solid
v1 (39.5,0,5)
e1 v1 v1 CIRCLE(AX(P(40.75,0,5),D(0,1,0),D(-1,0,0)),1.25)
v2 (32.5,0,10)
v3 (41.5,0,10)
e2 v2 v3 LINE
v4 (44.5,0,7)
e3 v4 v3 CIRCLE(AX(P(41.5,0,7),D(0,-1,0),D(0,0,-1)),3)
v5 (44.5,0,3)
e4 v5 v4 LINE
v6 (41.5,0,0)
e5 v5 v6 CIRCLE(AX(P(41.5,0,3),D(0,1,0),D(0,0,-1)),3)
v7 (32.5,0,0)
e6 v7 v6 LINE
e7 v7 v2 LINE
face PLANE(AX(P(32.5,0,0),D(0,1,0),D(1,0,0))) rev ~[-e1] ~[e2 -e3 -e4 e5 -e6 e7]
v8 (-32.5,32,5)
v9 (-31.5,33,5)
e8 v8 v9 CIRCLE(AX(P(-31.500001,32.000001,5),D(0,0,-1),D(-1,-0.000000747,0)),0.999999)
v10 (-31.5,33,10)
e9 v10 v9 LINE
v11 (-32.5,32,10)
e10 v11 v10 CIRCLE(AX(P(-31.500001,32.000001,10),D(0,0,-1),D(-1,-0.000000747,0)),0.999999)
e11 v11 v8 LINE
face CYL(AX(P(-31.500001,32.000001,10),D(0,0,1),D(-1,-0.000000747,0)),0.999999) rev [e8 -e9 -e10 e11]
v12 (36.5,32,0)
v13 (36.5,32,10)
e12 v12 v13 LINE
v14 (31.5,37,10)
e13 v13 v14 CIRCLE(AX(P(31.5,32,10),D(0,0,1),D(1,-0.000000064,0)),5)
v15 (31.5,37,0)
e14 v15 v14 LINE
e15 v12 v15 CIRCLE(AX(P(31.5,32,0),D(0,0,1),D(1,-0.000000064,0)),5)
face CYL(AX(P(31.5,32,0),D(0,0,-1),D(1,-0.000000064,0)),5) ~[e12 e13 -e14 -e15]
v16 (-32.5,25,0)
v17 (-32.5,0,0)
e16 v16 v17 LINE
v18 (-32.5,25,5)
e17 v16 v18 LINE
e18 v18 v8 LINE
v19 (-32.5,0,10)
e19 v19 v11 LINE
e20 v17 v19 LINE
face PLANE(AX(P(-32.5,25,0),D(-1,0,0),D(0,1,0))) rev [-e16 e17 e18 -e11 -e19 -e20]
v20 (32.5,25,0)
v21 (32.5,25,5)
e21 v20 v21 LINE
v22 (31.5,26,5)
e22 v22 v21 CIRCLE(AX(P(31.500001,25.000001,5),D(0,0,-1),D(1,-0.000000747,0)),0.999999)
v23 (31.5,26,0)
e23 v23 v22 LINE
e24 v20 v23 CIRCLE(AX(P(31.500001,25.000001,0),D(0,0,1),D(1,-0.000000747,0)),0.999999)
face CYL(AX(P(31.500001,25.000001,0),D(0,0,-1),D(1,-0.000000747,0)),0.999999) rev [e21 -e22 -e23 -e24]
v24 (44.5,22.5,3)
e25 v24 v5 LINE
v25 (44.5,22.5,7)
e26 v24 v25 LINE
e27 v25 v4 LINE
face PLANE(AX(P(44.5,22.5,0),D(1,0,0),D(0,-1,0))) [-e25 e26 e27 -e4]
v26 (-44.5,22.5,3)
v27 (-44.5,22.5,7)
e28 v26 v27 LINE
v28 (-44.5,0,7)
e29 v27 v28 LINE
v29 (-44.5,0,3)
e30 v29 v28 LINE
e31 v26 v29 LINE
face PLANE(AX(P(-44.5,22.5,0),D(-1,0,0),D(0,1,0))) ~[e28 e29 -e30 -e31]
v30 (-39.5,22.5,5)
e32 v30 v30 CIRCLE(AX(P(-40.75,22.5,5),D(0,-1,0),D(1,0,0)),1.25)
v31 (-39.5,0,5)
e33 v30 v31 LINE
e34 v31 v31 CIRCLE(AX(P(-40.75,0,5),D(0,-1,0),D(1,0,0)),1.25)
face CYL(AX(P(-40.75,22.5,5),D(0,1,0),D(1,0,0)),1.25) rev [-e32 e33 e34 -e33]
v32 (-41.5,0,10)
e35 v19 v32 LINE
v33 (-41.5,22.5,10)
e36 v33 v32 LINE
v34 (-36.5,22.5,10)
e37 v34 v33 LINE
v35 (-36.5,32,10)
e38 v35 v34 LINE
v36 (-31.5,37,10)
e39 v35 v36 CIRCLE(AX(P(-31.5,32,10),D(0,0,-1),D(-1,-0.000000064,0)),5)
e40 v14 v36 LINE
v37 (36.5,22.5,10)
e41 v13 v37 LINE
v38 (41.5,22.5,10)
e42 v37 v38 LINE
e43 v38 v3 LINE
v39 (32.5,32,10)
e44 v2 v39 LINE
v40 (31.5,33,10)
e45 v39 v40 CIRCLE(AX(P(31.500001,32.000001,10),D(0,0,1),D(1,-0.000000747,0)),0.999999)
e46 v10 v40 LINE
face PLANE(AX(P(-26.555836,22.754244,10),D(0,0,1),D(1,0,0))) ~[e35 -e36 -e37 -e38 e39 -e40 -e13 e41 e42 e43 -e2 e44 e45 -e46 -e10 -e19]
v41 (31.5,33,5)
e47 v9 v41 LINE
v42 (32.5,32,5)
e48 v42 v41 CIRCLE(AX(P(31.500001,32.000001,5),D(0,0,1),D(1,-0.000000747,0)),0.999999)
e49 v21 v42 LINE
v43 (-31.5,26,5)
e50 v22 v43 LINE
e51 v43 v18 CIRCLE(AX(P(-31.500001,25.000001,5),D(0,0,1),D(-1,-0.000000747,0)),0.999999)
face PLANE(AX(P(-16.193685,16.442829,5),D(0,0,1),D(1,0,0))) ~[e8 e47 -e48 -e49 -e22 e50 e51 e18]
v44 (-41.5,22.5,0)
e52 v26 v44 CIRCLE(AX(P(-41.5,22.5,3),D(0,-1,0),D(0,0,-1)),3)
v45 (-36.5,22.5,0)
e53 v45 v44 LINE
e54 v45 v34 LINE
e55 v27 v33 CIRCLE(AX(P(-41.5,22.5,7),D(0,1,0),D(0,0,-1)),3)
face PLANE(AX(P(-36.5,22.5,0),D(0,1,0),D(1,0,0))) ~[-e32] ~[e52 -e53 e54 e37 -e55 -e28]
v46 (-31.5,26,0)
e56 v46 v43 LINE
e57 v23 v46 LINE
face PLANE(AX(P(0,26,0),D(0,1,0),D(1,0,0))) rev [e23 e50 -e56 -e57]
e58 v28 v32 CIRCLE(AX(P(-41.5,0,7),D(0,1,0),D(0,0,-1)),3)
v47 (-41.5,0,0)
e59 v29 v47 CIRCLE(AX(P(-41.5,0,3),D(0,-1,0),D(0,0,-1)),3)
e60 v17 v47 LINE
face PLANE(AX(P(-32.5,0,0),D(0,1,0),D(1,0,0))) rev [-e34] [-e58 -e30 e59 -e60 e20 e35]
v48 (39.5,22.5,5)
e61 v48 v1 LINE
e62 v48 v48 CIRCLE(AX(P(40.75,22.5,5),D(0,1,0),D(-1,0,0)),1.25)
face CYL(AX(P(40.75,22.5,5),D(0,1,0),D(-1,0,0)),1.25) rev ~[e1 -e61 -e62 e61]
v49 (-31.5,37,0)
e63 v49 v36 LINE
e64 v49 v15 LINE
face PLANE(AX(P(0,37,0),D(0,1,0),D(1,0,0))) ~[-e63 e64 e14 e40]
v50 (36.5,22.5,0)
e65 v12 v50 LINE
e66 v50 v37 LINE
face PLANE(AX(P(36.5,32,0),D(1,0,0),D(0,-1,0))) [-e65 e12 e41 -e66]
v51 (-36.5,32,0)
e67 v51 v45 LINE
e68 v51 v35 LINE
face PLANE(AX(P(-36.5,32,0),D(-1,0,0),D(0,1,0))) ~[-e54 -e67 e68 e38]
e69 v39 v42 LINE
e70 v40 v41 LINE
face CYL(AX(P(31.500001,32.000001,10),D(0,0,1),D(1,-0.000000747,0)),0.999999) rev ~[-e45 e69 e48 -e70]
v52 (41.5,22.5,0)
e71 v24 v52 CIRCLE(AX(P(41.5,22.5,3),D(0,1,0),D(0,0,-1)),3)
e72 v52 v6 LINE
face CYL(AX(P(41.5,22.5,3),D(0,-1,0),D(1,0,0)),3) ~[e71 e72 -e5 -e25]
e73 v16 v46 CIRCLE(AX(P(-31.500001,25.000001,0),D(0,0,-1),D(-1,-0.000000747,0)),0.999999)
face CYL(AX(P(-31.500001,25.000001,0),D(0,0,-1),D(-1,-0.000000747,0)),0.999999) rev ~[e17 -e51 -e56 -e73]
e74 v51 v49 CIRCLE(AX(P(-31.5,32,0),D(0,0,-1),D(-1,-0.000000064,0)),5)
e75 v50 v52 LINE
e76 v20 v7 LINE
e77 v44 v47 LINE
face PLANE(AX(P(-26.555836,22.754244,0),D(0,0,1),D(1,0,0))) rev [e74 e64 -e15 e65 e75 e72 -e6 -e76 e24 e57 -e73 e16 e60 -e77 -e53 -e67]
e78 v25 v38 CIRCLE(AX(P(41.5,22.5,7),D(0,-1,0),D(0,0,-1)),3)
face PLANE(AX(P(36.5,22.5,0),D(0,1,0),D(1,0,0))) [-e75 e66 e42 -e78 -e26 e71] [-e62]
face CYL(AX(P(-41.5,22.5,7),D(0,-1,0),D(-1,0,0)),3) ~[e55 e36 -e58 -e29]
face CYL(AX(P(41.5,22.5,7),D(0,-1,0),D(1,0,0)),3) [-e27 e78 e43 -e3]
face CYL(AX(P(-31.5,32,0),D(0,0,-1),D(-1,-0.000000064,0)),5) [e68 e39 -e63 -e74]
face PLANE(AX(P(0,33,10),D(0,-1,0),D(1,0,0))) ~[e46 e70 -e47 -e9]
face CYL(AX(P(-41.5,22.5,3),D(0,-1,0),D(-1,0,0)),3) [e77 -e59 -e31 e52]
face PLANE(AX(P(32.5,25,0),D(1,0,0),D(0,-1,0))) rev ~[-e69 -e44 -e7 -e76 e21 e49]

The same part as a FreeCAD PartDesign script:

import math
import FreeCAD as App
import Part
import Sketcher

V = App.Vector


def edges_at(feature, points):
    """Names of the edges that pass closest to the given points."""
    edges = feature.Shape.Edges
    near = lambda p: min(range(len(edges)), key=lambda i: edges[i].distToShape(Part.Vertex(*p))[0])
    return sorted({f"Edge{near(p) + 1}" for p in points})

doc = App.newDocument("Part")
body = doc.addObject("PartDesign::Body", "Body")

# Sketch on XY plane
sketch1 = doc.addObject("Sketcher::SketchObject", "Sketch")
body.addObject(sketch1)
sketch1.AttachmentSupport = (doc.XY_Plane, [""])
sketch1.MapMode = "FlatFace"
sketch1.addGeometry([
    Part.LineSegment(V(0, 26, 0), V(31.5, 26, 0)),  # 0
    Part.ArcOfCircle(Part.Circle(V(31.500001, 25.000001, 0), V(0, 0, 1), 0.999999), math.radians(-0.000043), math.radians(90.000043)),  # 1
    Part.LineSegment(V(32.5, 25, 0), V(32.5, 0, 0)),  # 2
    Part.LineSegment(V(32.5, 0, 0), V(44.5, 0, 0)),  # 3
    Part.LineSegment(V(44.5, 0, 0), V(44.5, 22.5, 0)),  # 4
    Part.LineSegment(V(44.5, 22.5, 0), V(36.5, 22.5, 0)),  # 5
    Part.LineSegment(V(36.5, 22.5, 0), V(36.5, 32, 0)),  # 6
    Part.ArcOfCircle(Part.Circle(V(31.5, 32, 0), V(0, 0, 1), 5), math.radians(-0.000004), math.radians(90.000004)),  # 7
    Part.LineSegment(V(31.5, 37, 0), V(0, 37, 0)),  # 8
    Part.LineSegment(V(0, 37, 0), V(0, 26, 0)),  # 9
], False)
sketch1.addConstraint([
    Sketcher.Constraint("Tangent", 0, 2, 1, 2),
    Sketcher.Constraint("Tangent", 1, 1, 2, 1),
    Sketcher.Constraint("Coincident", 2, 2, 3, 1),
    Sketcher.Constraint("Coincident", 3, 2, 4, 1),
    Sketcher.Constraint("Coincident", 4, 2, 5, 1),
    Sketcher.Constraint("Coincident", 5, 2, 6, 1),
    Sketcher.Constraint("Tangent", 6, 2, 7, 1),
    Sketcher.Constraint("Tangent", 7, 2, 8, 1),
    Sketcher.Constraint("Coincident", 8, 2, 9, 1),
    Sketcher.Constraint("Coincident", 9, 2, 0, 1),
    Sketcher.Constraint("Horizontal", 0),
    Sketcher.Constraint("Vertical", 2),
    Sketcher.Constraint("Horizontal", 3),
    Sketcher.Constraint("Vertical", 4),
    Sketcher.Constraint("Horizontal", 5),
    Sketcher.Constraint("Vertical", 6),
    Sketcher.Constraint("Horizontal", 8),
    Sketcher.Constraint("Vertical", 9),
    Sketcher.Constraint("PointOnObject", 2, 2, -1),
    Sketcher.Constraint("PointOnObject", 8, 2, -2),
    Sketcher.Constraint("Vertical", 1, 3, 7, 3),
    Sketcher.Constraint("Radius", 1, 0.999999),
    Sketcher.Constraint("Radius", 7, 5.0),
    Sketcher.Constraint("DistanceX", 3, 1, 3, 2, 12.0),
    Sketcher.Constraint("DistanceY", 2, 2, 2, 1, 25.0),
    Sketcher.Constraint("DistanceY", 9, 2, 9, 1, 11.0),
    Sketcher.Constraint("DistanceX", 0, 1, 0, 2, 31.5),
    Sketcher.Constraint("DistanceY", 4, 1, 4, 2, 22.5),
])
pad1 = doc.addObject("PartDesign::Pad", "Pad")
body.addObject(pad1)
pad1.Profile = sketch1
pad1.Length = 10

# Sketch on XZ plane
sketch2 = doc.addObject("Sketcher::SketchObject", "Sketch001")
body.addObject(sketch2)
sketch2.AttachmentSupport = (doc.XZ_Plane, [""])
sketch2.MapMode = "FlatFace"
sketch2.AttachmentOffset = App.Placement(V(0, 0, -22.5), App.Rotation())
sketch2.addGeometry(Part.Circle(V(40.75, 5, 0), V(0, 0, 1), 1.25), False)
sketch2.addConstraint([
    Sketcher.Constraint("Diameter", 0, 2.5),
    Sketcher.Constraint("DistanceY", -1, 1, 0, 3, 5.0),
    Sketcher.Constraint("DistanceX", -1, 1, 0, 3, 40.75),
])
pocket1 = doc.addObject("PartDesign::Pocket", "Pocket")
body.addObject(pocket1)
pocket1.Profile = sketch2
pocket1.Type = "ThroughAll"
pocket1.Reversed = True

# Sketch on XY plane
sketch3 = doc.addObject("Sketcher::SketchObject", "Sketch002")
body.addObject(sketch3)
sketch3.AttachmentSupport = (doc.XY_Plane, [""])
sketch3.MapMode = "FlatFace"
sketch3.AttachmentOffset = App.Placement(V(0, 0, 10), App.Rotation())
sketch3.addGeometry([
    Part.LineSegment(V(0, 0, 0), V(32.5, 0, 0)),  # 0
    Part.LineSegment(V(32.5, 0, 0), V(32.5, 32, 0)),  # 1
    Part.ArcOfCircle(Part.Circle(V(31.500001, 32.000001, 0), V(0, 0, 1), 0.999999), math.radians(-0.000043), math.radians(90.000043)),  # 2
    Part.LineSegment(V(31.5, 33, 0), V(0, 33, 0)),  # 3
    Part.LineSegment(V(0, 33, 0), V(0, 0, 0)),  # 4
], False)
sketch3.addConstraint([
    Sketcher.Constraint("Coincident", 0, 2, 1, 1),
    Sketcher.Constraint("Tangent", 1, 2, 2, 1),
    Sketcher.Constraint("Tangent", 2, 2, 3, 1),
    Sketcher.Constraint("Coincident", 3, 2, 4, 1),
    Sketcher.Constraint("Coincident", 4, 2, 0, 1),
    Sketcher.Constraint("Horizontal", 0),
    Sketcher.Constraint("Vertical", 1),
    Sketcher.Constraint("Horizontal", 3),
    Sketcher.Constraint("Vertical", 4),
    Sketcher.Constraint("Coincident", 4, 2, -1, 1),
    Sketcher.Constraint("Radius", 2, 0.999999),
    Sketcher.Constraint("DistanceY", 1, 1, 1, 2, 32.0),
    Sketcher.Constraint("DistanceX", 0, 1, 0, 2, 32.5),
])
pocket2 = doc.addObject("PartDesign::Pocket", "Pocket001")
body.addObject(pocket2)
pocket2.Profile = sketch3
pocket2.Length = 5
doc.recompute()

fillet = doc.addObject("PartDesign::Fillet", "Fillet")
body.addObject(fillet)
fillet.Base = (pocket2, edges_at(pocket2, [(44.5, 11.25, 10), (44.5, 11.25, 0)]))
fillet.Radius = 3
body2 = doc.addObject("PartDesign::Body", "Body001")
doc.recompute()

body2.BaseFeature = body
doc.recompute()

mirroring = doc.addObject("Part::Mirroring", "Mirroring")
mirroring.Source = body
mirroring.Base = V(0, 0, 0)
mirroring.Normal = V(1, 0, 0)
body3 = doc.addObject("PartDesign::Body", "Body002")
body3.BaseFeature = mirroring
boolean = doc.addObject("PartDesign::Boolean", "Boolean")
body2.addObject(boolean)
boolean.Type = "Fuse"
boolean.addObjects([body3])
doc.recompute()
mirroring.Visibility = False

doc.recompute()
